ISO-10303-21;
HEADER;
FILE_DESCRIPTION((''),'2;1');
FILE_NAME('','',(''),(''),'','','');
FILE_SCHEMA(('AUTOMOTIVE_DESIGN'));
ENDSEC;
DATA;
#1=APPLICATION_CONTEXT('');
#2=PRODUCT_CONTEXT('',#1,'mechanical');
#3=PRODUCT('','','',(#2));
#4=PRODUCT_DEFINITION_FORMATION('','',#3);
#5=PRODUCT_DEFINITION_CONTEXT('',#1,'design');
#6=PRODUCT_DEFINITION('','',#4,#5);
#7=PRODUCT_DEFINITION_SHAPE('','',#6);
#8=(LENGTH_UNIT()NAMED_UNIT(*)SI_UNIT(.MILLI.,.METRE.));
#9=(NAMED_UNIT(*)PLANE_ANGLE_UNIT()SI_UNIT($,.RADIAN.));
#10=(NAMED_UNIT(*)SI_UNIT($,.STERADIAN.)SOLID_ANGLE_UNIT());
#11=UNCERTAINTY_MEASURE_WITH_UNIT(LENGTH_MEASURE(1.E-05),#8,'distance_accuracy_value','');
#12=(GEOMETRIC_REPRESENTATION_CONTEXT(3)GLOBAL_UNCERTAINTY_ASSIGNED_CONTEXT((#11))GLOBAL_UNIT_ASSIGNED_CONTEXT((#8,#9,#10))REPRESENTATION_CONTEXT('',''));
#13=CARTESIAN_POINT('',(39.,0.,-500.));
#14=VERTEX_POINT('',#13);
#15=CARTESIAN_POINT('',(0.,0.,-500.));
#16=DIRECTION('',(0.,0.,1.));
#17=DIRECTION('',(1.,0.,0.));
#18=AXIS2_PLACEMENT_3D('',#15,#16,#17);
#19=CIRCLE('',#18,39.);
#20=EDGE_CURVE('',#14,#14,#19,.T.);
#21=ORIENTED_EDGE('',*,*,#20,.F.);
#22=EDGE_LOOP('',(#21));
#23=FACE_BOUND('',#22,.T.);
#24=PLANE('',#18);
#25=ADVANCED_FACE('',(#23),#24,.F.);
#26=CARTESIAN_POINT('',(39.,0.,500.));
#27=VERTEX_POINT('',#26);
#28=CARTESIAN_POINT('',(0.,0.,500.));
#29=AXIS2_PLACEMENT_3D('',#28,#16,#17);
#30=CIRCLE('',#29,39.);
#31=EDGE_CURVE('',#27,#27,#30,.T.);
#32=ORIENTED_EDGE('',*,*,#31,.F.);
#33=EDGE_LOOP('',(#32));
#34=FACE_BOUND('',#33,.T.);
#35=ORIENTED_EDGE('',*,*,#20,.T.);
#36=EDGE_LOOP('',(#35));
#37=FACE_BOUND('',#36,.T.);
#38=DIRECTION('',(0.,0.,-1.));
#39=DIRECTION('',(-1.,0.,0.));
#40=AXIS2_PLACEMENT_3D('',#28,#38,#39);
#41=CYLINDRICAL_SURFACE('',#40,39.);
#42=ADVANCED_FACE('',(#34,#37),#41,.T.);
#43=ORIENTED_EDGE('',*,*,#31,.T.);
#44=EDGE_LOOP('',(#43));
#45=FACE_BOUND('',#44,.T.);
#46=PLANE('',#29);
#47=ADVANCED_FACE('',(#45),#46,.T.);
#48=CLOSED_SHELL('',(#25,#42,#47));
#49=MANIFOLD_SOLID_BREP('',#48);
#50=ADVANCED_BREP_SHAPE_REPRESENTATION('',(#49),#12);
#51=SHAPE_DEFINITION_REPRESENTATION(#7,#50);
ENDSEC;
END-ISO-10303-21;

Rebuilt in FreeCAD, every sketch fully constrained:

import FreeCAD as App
import Part
import Sketcher

V = App.Vector
Q = App.Units.Quantity

doc = App.newDocument("Part")
body = doc.addObject("PartDesign::Body", "Body")

# Sketch on XY plane
sketch1 = doc.addObject("Sketcher::SketchObject", "Sketch")
body.addObject(sketch1)
sketch1.AttachmentSupport = (doc.XY_Plane, [""])
sketch1.MapMode = "FlatFace"
sketch1.addGeometry(Part.Circle(V(0, 0, 0), V(0, 0, 1), 39), False)
sketch1.addConstraint(Sketcher.Constraint("Coincident", 0, 3, -1, 1))
sketch1.addConstraint(Sketcher.Constraint("Diameter", 0, Q("78 mm")))
pad1 = doc.addObject("PartDesign::Pad", "Pad")
body.addObject(pad1)
pad1.Profile = sketch1
pad1.Length = 1000
pad1.Midplane = True

doc.recompute()
